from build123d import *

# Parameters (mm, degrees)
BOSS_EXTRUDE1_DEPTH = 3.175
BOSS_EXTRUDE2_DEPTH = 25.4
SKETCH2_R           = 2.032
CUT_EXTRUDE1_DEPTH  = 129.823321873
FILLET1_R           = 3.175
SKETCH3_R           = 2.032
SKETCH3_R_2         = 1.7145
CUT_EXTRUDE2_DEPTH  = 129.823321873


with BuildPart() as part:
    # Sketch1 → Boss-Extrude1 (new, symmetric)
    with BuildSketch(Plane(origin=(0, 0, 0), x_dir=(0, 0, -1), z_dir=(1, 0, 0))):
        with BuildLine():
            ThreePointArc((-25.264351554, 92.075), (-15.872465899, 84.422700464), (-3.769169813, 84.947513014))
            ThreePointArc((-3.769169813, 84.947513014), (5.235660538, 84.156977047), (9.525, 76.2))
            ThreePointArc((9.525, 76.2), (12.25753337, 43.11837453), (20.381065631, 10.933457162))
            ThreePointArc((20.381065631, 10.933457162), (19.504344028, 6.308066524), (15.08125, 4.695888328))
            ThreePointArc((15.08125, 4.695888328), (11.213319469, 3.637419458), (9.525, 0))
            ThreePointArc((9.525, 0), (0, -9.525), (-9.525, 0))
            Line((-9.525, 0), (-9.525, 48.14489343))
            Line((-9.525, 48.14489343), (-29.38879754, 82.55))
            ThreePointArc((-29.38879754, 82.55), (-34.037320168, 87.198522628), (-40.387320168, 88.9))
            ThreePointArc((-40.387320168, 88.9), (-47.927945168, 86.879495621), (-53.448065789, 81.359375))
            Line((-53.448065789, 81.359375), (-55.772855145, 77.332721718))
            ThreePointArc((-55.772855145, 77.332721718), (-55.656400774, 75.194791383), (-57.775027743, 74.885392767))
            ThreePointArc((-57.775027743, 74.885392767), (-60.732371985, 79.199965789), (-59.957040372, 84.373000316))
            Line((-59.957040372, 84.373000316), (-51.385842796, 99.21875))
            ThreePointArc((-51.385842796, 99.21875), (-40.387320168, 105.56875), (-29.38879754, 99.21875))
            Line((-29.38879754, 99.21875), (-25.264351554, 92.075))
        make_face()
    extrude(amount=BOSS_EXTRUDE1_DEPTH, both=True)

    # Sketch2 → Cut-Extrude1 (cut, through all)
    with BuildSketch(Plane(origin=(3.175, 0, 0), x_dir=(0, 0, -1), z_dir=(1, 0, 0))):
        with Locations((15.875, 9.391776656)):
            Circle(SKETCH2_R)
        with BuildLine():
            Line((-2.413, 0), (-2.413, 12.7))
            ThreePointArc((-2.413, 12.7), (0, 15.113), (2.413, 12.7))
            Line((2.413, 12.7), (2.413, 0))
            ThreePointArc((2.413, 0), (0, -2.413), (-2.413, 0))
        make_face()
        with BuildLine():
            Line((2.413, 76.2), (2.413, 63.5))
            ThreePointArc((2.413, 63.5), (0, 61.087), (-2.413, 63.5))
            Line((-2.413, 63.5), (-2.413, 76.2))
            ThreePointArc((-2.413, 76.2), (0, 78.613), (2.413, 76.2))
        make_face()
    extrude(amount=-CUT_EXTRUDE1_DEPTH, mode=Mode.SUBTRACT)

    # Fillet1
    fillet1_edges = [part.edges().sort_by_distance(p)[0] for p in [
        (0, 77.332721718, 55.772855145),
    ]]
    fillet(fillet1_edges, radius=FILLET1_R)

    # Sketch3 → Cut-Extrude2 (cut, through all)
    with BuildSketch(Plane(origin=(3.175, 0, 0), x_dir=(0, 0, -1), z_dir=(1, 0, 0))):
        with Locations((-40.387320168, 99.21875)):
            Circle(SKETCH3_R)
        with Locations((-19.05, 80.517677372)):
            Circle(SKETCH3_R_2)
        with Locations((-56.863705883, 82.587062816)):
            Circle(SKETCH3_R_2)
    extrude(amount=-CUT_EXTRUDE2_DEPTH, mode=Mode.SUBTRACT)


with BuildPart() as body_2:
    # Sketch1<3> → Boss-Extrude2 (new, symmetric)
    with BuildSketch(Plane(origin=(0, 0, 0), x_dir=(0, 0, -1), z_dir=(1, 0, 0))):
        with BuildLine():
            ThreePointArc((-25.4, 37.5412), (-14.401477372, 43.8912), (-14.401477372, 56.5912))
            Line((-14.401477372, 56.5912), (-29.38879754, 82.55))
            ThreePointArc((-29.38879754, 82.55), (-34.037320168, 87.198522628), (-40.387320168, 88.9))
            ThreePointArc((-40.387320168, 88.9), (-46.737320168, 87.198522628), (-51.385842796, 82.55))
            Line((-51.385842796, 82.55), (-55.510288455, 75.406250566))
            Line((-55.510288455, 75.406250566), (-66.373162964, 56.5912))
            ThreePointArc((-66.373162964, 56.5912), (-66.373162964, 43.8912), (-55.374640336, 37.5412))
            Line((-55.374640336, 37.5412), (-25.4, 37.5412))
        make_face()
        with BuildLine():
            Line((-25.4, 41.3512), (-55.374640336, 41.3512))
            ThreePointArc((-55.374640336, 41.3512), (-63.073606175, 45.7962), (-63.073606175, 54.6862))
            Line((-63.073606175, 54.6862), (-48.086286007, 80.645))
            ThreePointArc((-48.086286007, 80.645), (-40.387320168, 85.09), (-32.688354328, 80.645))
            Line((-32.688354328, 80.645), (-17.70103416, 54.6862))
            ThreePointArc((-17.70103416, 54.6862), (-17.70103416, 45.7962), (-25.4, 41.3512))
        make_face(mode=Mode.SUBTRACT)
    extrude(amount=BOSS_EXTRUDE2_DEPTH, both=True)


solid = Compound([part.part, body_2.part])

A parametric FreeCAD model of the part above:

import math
import FreeCAD as App
import Part
import Sketcher
Q = App.Units.Quantity


def edges_at(feature, points):
    """Names of the edges that pass closest to the given points."""
    edges = feature.Shape.Edges
    near = lambda p: min(range(len(edges)), key=lambda i: edges[i].distToShape(Part.Vertex(*p))[0])
    return sorted({f"Edge{near(p) + 1}" for p in points})

doc = App.newDocument("Part")
body = doc.addObject("PartDesign::Body", "Body")

# Sketch on YZ plane
sketch1 = body.newObject("Sketcher::SketchObject", "Sketch")
sketch1.AttachmentSupport = (doc.getObject("YZ_Plane"), [""])
sketch1.MapMode = "FlatFace"
sketch1.addGeometry([
    Part.ArcOfCircle(Part.Circle(App.Vector(100.6, 10.5, 0), App.Vector(0, 0, 1), 17), math.radians(120), math.radians(203)),  # 0
    Part.LineSegment(App.Vector(92.1, 25.3, 0), App.Vector(99.2, 29.4, 0)),  # 1
    Part.ArcOfCircle(Part.Circle(App.Vector(92.9, 40.4, 0), App.Vector(0, 0, 1), 12.7), math.radians(-60), math.radians(60)),  # 2
    Part.LineSegment(App.Vector(99.2, 51.4, 0), App.Vector(84.4, 60, 0)),  # 3
    Part.ArcOfCircle(Part.Circle(App.Vector(80.8, 53.8, 0), App.Vector(0, 0, 1), 7.1), math.radians(60), math.radians(146)),  # 4
    Part.ArcOfCircle(Part.Circle(App.Vector(76.2, 56.9, 0), App.Vector(0, 0, 1), 1.6), math.radians(146), math.radians(316)),  # 5
    Part.LineSegment(App.Vector(77.3, 55.8, 0), App.Vector(81.4, 53.4, 0)),  # 6
    Part.ArcOfCircle(Part.Circle(App.Vector(73.8, 40.4, 0), App.Vector(0, 0, 1), 15.1), math.radians(0), math.radians(60)),  # 7
    Part.ArcOfCircle(Part.Circle(App.Vector(76.2, 40.4, 0), App.Vector(0, 0, 1), 12.7), math.radians(-60), math.radians(0)),  # 8
    Part.LineSegment(App.Vector(82.5, 29.4, 0), App.Vector(48.1, 9.5, 0)),  # 9
    Part.LineSegment(App.Vector(48.1, 9.5, 0), App.Vector(0, 9.5, 0)),  # 10
    Part.ArcOfCircle(Part.Circle(App.Vector(0, 0, 0), App.Vector(0, 0, 1), 9.5), math.radians(90), math.radians(270)),  # 11
    Part.ArcOfCircle(Part.Circle(App.Vector(0, -14.3, 0), App.Vector(0, 0, 1), 4.8), math.radians(-10), math.radians(90)),  # 12
    Part.ArcOfCircle(Part.Circle(App.Vector(9.4, -15.9, 0), App.Vector(0, 0, 1), 4.8), math.radians(170), math.radians(289)),  # 13
    Part.ArcOfCircle(Part.Circle(App.Vector(76.2, -211.1, 0), App.Vector(0, 0, 1), 201.6), math.radians(90), math.radians(108.89)),  # 14
    Part.ArcOfCircle(Part.Circle(App.Vector(76.2, 0, 0), App.Vector(0, 0, 1), 9.5), math.radians(-90), math.radians(23)),  # 15
], False)
sketch1.addConstraint([
    Sketcher.Constraint("Tangent", 0, 1, 1, 1),
    Sketcher.Constraint("Tangent", 1, 2, 2, 1),
    Sketcher.Constraint("Tangent", 2, 2, 3, 1),
    Sketcher.Constraint("Tangent", 3, 2, 4, 1),
    Sketcher.Constraint("Tangent", 4, 2, 5, 1),
    Sketcher.Constraint("Coincident", 5, 2, 6, 1),
    Sketcher.Constraint("Tangent", 6, 2, 7, 2),
    Sketcher.Constraint("Tangent", 7, 1, 8, 2),
    Sketcher.Constraint("Tangent", 8, 1, 9, 1),
    Sketcher.Constraint("Coincident", 9, 2, 10, 1),
    Sketcher.Constraint("Tangent", 10, 2, 11, 1),
    Sketcher.Constraint("Tangent", 11, 2, 12, 2),
    Sketcher.Constraint("Tangent", 12, 1, 13, 1),
    Sketcher.Constraint("Tangent", 13, 2, 14, 2),
    Sketcher.Constraint("Tangent", 14, 1, 15, 1),
    Sketcher.Constraint("Tangent", 15, 2, 0, 2),
    Sketcher.Constraint("Horizontal", 10),
    Sketcher.Constraint("Coincident", 11, 3, -1, 1),
    Sketcher.Constraint("Equal", 2, 8),
    Sketcher.Constraint("Equal", 12, 13),
    Sketcher.Constraint("Equal", 11, 15),
    Sketcher.Constraint("PointOnObject", 12, 3, -2),
    Sketcher.Constraint("PointOnObject", 15, 3, -1),
    Sketcher.Constraint("Parallel", 3, 6),
    Sketcher.Constraint("Parallel", 1, 9),
    Sketcher.Constraint("Horizontal", 2, 3, 7, 3),
    Sketcher.Constraint("Horizontal", 7, 3, 8, 3),
    Sketcher.Constraint("Vertical", 5, 3, 8, 3),
    Sketcher.Constraint("Vertical", 8, 3, 14, 3),
    Sketcher.Constraint("Vertical", 14, 3, 15, 3),
    Sketcher.Constraint("Vertical", 1, 2, 2, 2),
    Sketcher.Constraint("Radius", 2, Q("0.5 in")),
    Sketcher.Constraint("DistanceX", -1, 1, 5, 3, Q("3 in")),
    Sketcher.Constraint("Angle", 1, Q("30 deg")),
    Sketcher.Constraint("Radius", 4, Q("0.28125 in")),
    Sketcher.Constraint("Radius", 5, Q("0.0625 in")),
    Sketcher.Constraint("Radius", 7, Q("0.59375 in")),
    Sketcher.Constraint("Radius", 11, Q("0.375 in")),
    Sketcher.Constraint("Radius", 12, Q("0.1875 in")),
    Sketcher.Constraint("DistanceX", 7, 3, 1, 2, Q("1 in")),
    Sketcher.Constraint("DistanceY", 13, 3, 9, 2, Q("1 in")),
    Sketcher.Constraint("DistanceX", -1, 1, 0, 1, Q("3.625 in")),
    Sketcher.Constraint("Radius", 0, 17.036159),
    Sketcher.Constraint("DistanceX", -1, 1, 3, 2, 84.373),
])
pad1 = body.newObject("PartDesign::Pad", "Pad")
pad1.Profile = sketch1
pad1.Length = Q("0.25 in")
pad1.Midplane = True

# Sketch on YZ plane
sketch2 = body.newObject("Sketcher::SketchObject", "Sketch001")
sketch2.AttachmentSupport = (doc.getObject("YZ_Plane"), [""])
sketch2.MapMode = "FlatFace"
sketch2.AttachmentOffset = App.Placement(App.Vector(0, 0, 0.125 * 25.4), App.Rotation())
sketch2.addGeometry([
    Part.Circle(App.Vector(9.4, -15.9, 0), App.Vector(0, 0, 1), 2),  # 0
    Part.LineSegment(App.Vector(12.7, 2.4, 0), App.Vector(0, 2.4, 0)),  # 1
    Part.ArcOfCircle(Part.Circle(App.Vector(0, 0, 0), App.Vector(0, 0, 1), 2.4), math.radians(90), math.radians(270)),  # 2
    Part.LineSegment(App.Vector(0, -2.4, 0), App.Vector(12.7, -2.4, 0)),  # 3
    Part.ArcOfCircle(Part.Circle(App.Vector(12.7, 0, 0), App.Vector(0, 0, 1), 2.4), math.radians(-90), math.radians(90)),  # 4
    Part.LineSegment(App.Vector(63.5, -2.4, 0), App.Vector(76.2, -2.4, 0)),  # 5
    Part.ArcOfCircle(Part.Circle(App.Vector(76.2, 0, 0), App.Vector(0, 0, 1), 2.4), math.radians(-90), math.radians(90)),  # 6
    Part.LineSegment(App.Vector(76.2, 2.4, 0), App.Vector(63.5, 2.4, 0)),  # 7
    Part.ArcOfCircle(Part.Circle(App.Vector(63.5, 0, 0), App.Vector(0, 0, 1), 2.4), math.radians(90), math.radians(270)),  # 8
], False)
sketch2.addConstraint([
    Sketcher.Constraint("Tangent", 1, 2, 2, 1),
    Sketcher.Constraint("Tangent", 2, 2, 3, 1),
    Sketcher.Constraint("Tangent", 3, 2, 4, 1),
    Sketcher.Constraint("Tangent", 4, 2, 1, 1),
    Sketcher.Constraint("Tangent", 5, 2, 6, 1),
    Sketcher.Constraint("Tangent", 6, 2, 7, 1),
    Sketcher.Constraint("Tangent", 7, 2, 8, 1),
    Sketcher.Constraint("Tangent", 8, 2, 5, 1),
    Sketcher.Constraint("Horizontal", 1),
    Sketcher.Constraint("Horizontal", 3),
    Sketcher.Constraint("Horizontal", 5),
    Sketcher.Constraint("Horizontal", 7),
    Sketcher.Constraint("Coincident", 2, 3, -1, 1),
    Sketcher.Constraint("Equal", 4, 6),
    Sketcher.Constraint("PointOnObject", 6, 3, -1),
    Sketcher.Constraint("Equal", 3, 5),
    Sketcher.Constraint("Diameter", 0, Q("0.16 in")),
    Sketcher.Constraint("DistanceX", 1, 2, 1, 1, Q("0.5 in")),
    Sketcher.Constraint("DistanceX", -1, 1, 6, 3, Q("3 in")),
    Sketcher.Constraint("Radius", 2, Q("0.095 in")),
    Sketcher.Constraint("DistanceY", 0, 3, 1, 2, Q("0.72 in")),
    Sketcher.Constraint("DistanceX", -1, 1, 0, 3, 9.391777),
])
pocket1 = body.newObject("PartDesign::Pocket", "Pocket")
pocket1.Profile = sketch2
pocket1.Type = "ThroughAll"
doc.recompute()

fillet = body.newObject("PartDesign::Fillet", "Fillet")
fillet.Base = (pocket1, edges_at(pocket1, [(0, 77.333, 55.773)]))
fillet.Radius = Q("0.125 in")

# Sketch on YZ plane
sketch3 = body.newObject("Sketcher::SketchObject", "Sketch002")
sketch3.AttachmentSupport = (doc.getObject("YZ_Plane"), [""])
sketch3.MapMode = "FlatFace"
sketch3.AttachmentOffset = App.Placement(App.Vector(0, 0, 0.125 * 25.4), App.Rotation())
sketch3.addGeometry([
    Part.Circle(App.Vector(99.2, 40.4, 0), App.Vector(0, 0, 1), 2),
    Part.Circle(App.Vector(80.5, 19.1, 0), App.Vector(0, 0, 1), 1.7),
    Part.Circle(App.Vector(82.6, 56.9, 0), App.Vector(0, 0, 1), 1.7),
], False)
sketch3.addConstraint([
    Sketcher.Constraint("Equal", 1, 2),
    Sketcher.Constraint("Diameter", 0, Q("0.16 in")),
    Sketcher.Constraint("Diameter", 1, Q("0.135 in")),
    Sketcher.Constraint("DistanceY", -1, 1, 1, 3, Q("0.75 in")),
    Sketcher.Constraint("DistanceX", -1, 1, 0, 3, Q("3.90625 in")),
    Sketcher.Constraint("DistanceY", -1, 1, 0, 3, 40.38732),
    Sketcher.Constraint("DistanceX", -1, 1, 1, 3, 80.517677),
    Sketcher.Constraint("DistanceX", -1, 1, 2, 3, 82.587063),
    Sketcher.Constraint("DistanceY", -1, 1, 2, 3, 56.863706),
])
pocket2 = body.newObject("PartDesign::Pocket", "Pocket001")
pocket2.Profile = sketch3
pocket2.Type = "ThroughAll"
body2 = doc.addObject("PartDesign::Body", "Body001")

# Sketch on YZ plane
sketch4 = body2.newObject("Sketcher::SketchObject", "Sketch003")
sketch4.AttachmentSupport = (doc.getObject("YZ_Plane001"), [""])
sketch4.MapMode = "FlatFace"
sketch4.addGeometry([
    Part.ArcOfCircle(Part.Circle(App.Vector(50, 25, 0), App.Vector(0, 0, 1), 13), math.radians(180), math.radians(300)),  # 0
    Part.LineSegment(App.Vector(57, 14, 0), App.Vector(83, 29, 0)),  # 1
    Part.ArcOfCircle(Part.Circle(App.Vector(76, 40, 0), App.Vector(0, 0, 1), 13), math.radians(-60), math.radians(0)),  # 2
    Part.ArcOfCircle(Part.Circle(App.Vector(76, 40, 0), App.Vector(0, 0, 1), 13), math.radians(0), math.radians(60)),  # 3
    Part.LineSegment(App.Vector(83, 51, 0), App.Vector(75, 56, 0)),  # 4
    Part.LineSegment(App.Vector(75, 56, 0), App.Vector(57, 66, 0)),  # 5
    Part.ArcOfCircle(Part.Circle(App.Vector(50, 55, 0), App.Vector(0, 0, 1), 13), math.radians(60), math.radians(180)),  # 6
    Part.LineSegment(App.Vector(38, 55, 0), App.Vector(38, 25, 0)),  # 7
    Part.ArcOfCircle(Part.Circle(App.Vector(50, 25, 0), App.Vector(0, 0, 1), 9), math.radians(180), math.radians(300)),  # 8
    Part.LineSegment(App.Vector(41, 25, 0), App.Vector(41, 55, 0)),  # 9
    Part.ArcOfCircle(Part.Circle(App.Vector(50, 55, 0), App.Vector(0, 0, 1), 9), math.radians(60), math.radians(180)),  # 10
    Part.LineSegment(App.Vector(55, 63, 0), App.Vector(81, 48, 0)),  # 11
    Part.ArcOfCircle(Part.Circle(App.Vector(76, 40, 0), App.Vector(0, 0, 1), 9), math.radians(-60), math.radians(60)),  # 12
    Part.LineSegment(App.Vector(81, 33, 0), App.Vector(55, 18, 0)),  # 13
], False)
sketch4.addConstraint([
    Sketcher.Constraint("Tangent", 0, 2, 1, 1),
    Sketcher.Constraint("Tangent", 1, 2, 2, 1),
    Sketcher.Constraint("Tangent", 2, 2, 3, 1),
    Sketcher.Constraint("Tangent", 3, 2, 4, 1),
    Sketcher.Constraint("Coincident", 4, 2, 5, 1),
    Sketcher.Constraint("Tangent", 5, 2, 6, 1),
    Sketcher.Constraint("Tangent", 6, 2, 7, 1),
    Sketcher.Constraint("Tangent", 7, 2, 0, 1),
    Sketcher.Constraint("Tangent", 8, 1, 9, 1),
    Sketcher.Constraint("Tangent", 9, 2, 10, 2),
    Sketcher.Constraint("Tangent", 10, 1, 11, 1),
    Sketcher.Constraint("Tangent", 11, 2, 12, 2),
    Sketcher.Constraint("Tangent", 12, 1, 13, 1),
    Sketcher.Constraint("Tangent", 13, 2, 8, 2),
    Sketcher.Constraint("Vertical", 7),
    Sketcher.Constraint("Vertical", 9),
    Sketcher.Constraint("Coincident", 8, 3, 0, 3),
    Sketcher.Constraint("Coincident", 10, 3, 6, 3),
    Sketcher.Constraint("Coincident", 12, 3, 2, 3),
    Sketcher.Constraint("Equal", 0, 2),
    Sketcher.Constraint("Equal", 2, 3),
    Sketcher.Constraint("Equal", 3, 6),
    Sketcher.Constraint("Equal", 10, 12),
    Sketcher.Constraint("Parallel", 4, 5),
    Sketcher.Constraint("Horizontal", 12, 3, 2, 2),
    Sketcher.Constraint("Vertical", 1, 2, 3, 2),
    Sketcher.Constraint("Radius", 0, Q("0.5 in")),
    Sketcher.Constraint("Radius", 8, Q("0.35 in")),
    Sketcher.Constraint("DistanceY", -1, 1, 0, 3, Q("1 in")),
    Sketcher.Constraint("DistanceX", -1, 1, 2, 3, Q("3 in")),
    Sketcher.Constraint("Angle", 1, Q("30 deg")),
    Sketcher.Constraint("DistanceX", -1, 1, 0, 3, Q("1.978 in")),
    Sketcher.Constraint("DistanceX", -1, 1, 4, 2, Q("2.96875 in")),
])
pad2 = body2.newObject("PartDesign::Pad", "Pad001")
pad2.Profile = sketch4
pad2.Length = Q("2 in")
pad2.Midplane = True

doc.recompute()
